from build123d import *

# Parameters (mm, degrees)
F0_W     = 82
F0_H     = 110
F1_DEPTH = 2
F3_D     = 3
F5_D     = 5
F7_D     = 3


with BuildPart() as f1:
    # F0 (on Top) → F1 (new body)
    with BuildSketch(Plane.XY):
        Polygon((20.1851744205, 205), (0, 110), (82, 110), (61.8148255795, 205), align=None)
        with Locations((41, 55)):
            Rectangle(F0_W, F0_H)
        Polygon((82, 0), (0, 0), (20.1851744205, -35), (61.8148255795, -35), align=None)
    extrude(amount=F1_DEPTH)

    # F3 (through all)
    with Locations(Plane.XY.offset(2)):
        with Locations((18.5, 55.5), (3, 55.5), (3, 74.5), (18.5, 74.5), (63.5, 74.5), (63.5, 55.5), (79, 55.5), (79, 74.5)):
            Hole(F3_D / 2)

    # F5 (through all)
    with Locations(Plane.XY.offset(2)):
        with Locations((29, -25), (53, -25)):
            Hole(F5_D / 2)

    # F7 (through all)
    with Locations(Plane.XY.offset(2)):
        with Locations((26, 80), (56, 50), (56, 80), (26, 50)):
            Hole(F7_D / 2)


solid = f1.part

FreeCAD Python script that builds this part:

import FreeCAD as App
import Part
import Sketcher
Q = App.Units.Quantity


def add_polygon(sketch, points):
    """Adds a closed chain of lines whose ends are joined by coincident constraints."""
    first, n = sketch.GeometryCount, len(points)
    for a, b in zip(points, points[1:] + points[:1]):
        sketch.addGeometry(Part.LineSegment(App.Vector(*a, 0), App.Vector(*b, 0)), False)
    for i in range(n):
        sketch.addConstraint(Sketcher.Constraint("Coincident", first + i, 2, first + (i + 1) % n, 1))

doc = App.newDocument("Part")
body = doc.addObject("PartDesign::Body", "Body")

# Sketch on XY plane
sketch1 = body.newObject("Sketcher::SketchObject", "Sketch")
sketch1.AttachmentSupport = (doc.getObject("XY_Plane"), [""])
sketch1.MapMode = "FlatFace"
add_polygon(sketch1, [(20, 205), (0, 110), (0, 0), (20, -35), (62, -35), (82, 0), (82, 110), (62, 205)])  # lines 0-7
sketch1.addConstraint([
    Sketcher.Constraint("Vertical", 1),
    Sketcher.Constraint("Horizontal", 3),
    Sketcher.Constraint("Vertical", 5),
    Sketcher.Constraint("Horizontal", 7),
    Sketcher.Constraint("Coincident", 1, 2, -1, 1),
    Sketcher.Constraint("PointOnObject", 4, 2, -1),
    Sketcher.Constraint("Horizontal", 0, 2, 5, 2),
    Sketcher.Constraint("Vertical", 3, 2, 6, 2),
    Sketcher.Constraint("Vertical", 2, 2, 7, 2),
    Sketcher.Constraint("Equal", 2, 4),
    Sketcher.Constraint("DistanceY", 1, 2, 1, 1, Q("110 mm")),
    Sketcher.Constraint("DistanceY", 2, 2, -1, 1, Q("35 mm")),
    Sketcher.Constraint("DistanceX", -1, 1, 4, 2, Q("82 mm")),
    Sketcher.Constraint("DistanceY", -1, 1, 6, 2, Q("205 mm")),
    Sketcher.Constraint("DistanceX", 3, 1, 3, 2, Q("41.629651 mm")),
])
pad1 = body.newObject("PartDesign::Pad", "Pad")
pad1.Profile = sketch1
pad1.Length = 2

# Sketch on XY plane
sketch2 = body.newObject("Sketcher::SketchObject", "Sketch001")
sketch2.AttachmentSupport = (doc.getObject("XY_Plane"), [""])
sketch2.MapMode = "FlatFace"
sketch2.AttachmentOffset = App.Placement(App.Vector(0, 0, 2), App.Rotation())
sketch2.addGeometry([
    Part.Circle(App.Vector(18.5, 55.5, 0), App.Vector(0, 0, 1), 1.5),  # 0
    Part.Circle(App.Vector(3, 55.5, 0), App.Vector(0, 0, 1), 1.5),  # 1
    Part.Circle(App.Vector(3, 74.5, 0), App.Vector(0, 0, 1), 1.5),  # 2
    Part.Circle(App.Vector(18.5, 74.5, 0), App.Vector(0, 0, 1), 1.5),  # 3
    Part.Circle(App.Vector(63.5, 74.5, 0), App.Vector(0, 0, 1), 1.5),  # 4
    Part.Circle(App.Vector(63.5, 55.5, 0), App.Vector(0, 0, 1), 1.5),  # 5
    Part.Circle(App.Vector(79, 55.5, 0), App.Vector(0, 0, 1), 1.5),  # 6
    Part.Circle(App.Vector(79, 74.5, 0), App.Vector(0, 0, 1), 1.5),  # 7
], False)
sketch2.addConstraint([
    Sketcher.Constraint("Equal", 0, 1),
    Sketcher.Constraint("Equal", 1, 2),
    Sketcher.Constraint("Equal", 2, 3),
    Sketcher.Constraint("Equal", 3, 4),
    Sketcher.Constraint("Equal", 4, 5),
    Sketcher.Constraint("Equal", 5, 6),
    Sketcher.Constraint("Equal", 6, 7),
    Sketcher.Constraint("Horizontal", 0, 3, 1, 3),
    Sketcher.Constraint("Horizontal", 2, 3, 3, 3),
    Sketcher.Constraint("Horizontal", 3, 3, 4, 3),
    Sketcher.Constraint("Horizontal", 1, 3, 5, 3),
    Sketcher.Constraint("Horizontal", 5, 3, 6, 3),
    Sketcher.Constraint("Horizontal", 4, 3, 7, 3),
    Sketcher.Constraint("Vertical", 1, 3, 2, 3),
    Sketcher.Constraint("Vertical", 0, 3, 3, 3),
    Sketcher.Constraint("Vertical", 4, 3, 5, 3),
    Sketcher.Constraint("Vertical", 6, 3, 7, 3),
    Sketcher.Constraint("Diameter", 0, Q("3 mm")),
    Sketcher.Constraint("DistanceX", -1, 1, 1, 3, Q("3 mm")),
    Sketcher.Constraint("DistanceX", -1, 1, 6, 3, Q("79 mm")),
    Sketcher.Constraint("DistanceY", 1, 3, 2, 3, Q("19 mm")),
    Sketcher.Constraint("DistanceX", 3, 3, 4, 3, Q("45 mm")),
    Sketcher.Constraint("DistanceX", -1, 1, 0, 3, Q("18.5 mm")),
    Sketcher.Constraint("DistanceY", -1, 1, 0, 3, Q("55.5 mm")),
])
doc.recompute()
hole = body.newObject("PartDesign::Hole", "Hole")
hole.Profile = sketch2
hole.ThreadType = "None"
hole.Diameter = 3
hole.DepthType = "ThroughAll"

# Sketch on XY plane
sketch3 = body.newObject("Sketcher::SketchObject", "Sketch002")
sketch3.AttachmentSupport = (doc.getObject("XY_Plane"), [""])
sketch3.MapMode = "FlatFace"
sketch3.AttachmentOffset = App.Placement(App.Vector(0, 0, 2), App.Rotation())
sketch3.addGeometry([
    Part.Circle(App.Vector(29, -25, 0), App.Vector(0, 0, 1), 2.5),
    Part.Circle(App.Vector(53, -25, 0), App.Vector(0, 0, 1), 2.5),
], False)
sketch3.addConstraint([
    Sketcher.Constraint("Equal", 0, 1),
    Sketcher.Constraint("Horizontal", 0, 3, 1, 3),
    Sketcher.Constraint("Diameter", 0, Q("5 mm")),
    Sketcher.Constraint("DistanceX", -1, 1, 0, 3, Q("29 mm")),
    Sketcher.Constraint("DistanceY", 0, 3, -1, 1, Q("25 mm")),
    Sketcher.Constraint("DistanceX", -1, 1, 1, 3, Q("53 mm")),
])
doc.recompute()
hole2 = body.newObject("PartDesign::Hole", "Hole001")
hole2.Profile = sketch3
hole2.ThreadType = "None"
hole2.Diameter = 5
hole2.DepthType = "ThroughAll"

# Sketch on XY plane
sketch4 = body.newObject("Sketcher::SketchObject", "Sketch003")
sketch4.AttachmentSupport = (doc.getObject("XY_Plane"), [""])
sketch4.MapMode = "FlatFace"
sketch4.AttachmentOffset = App.Placement(App.Vector(0, 0, 2), App.Rotation())
sketch4.addGeometry([
    Part.Circle(App.Vector(26, 80, 0), App.Vector(0, 0, 1), 1.5),
    Part.Circle(App.Vector(56, 50, 0), App.Vector(0, 0, 1), 1.5),
    Part.Circle(App.Vector(56, 80, 0), App.Vector(0, 0, 1), 1.5),
    Part.Circle(App.Vector(26, 50, 0), App.Vector(0, 0, 1), 1.5),
], False)
sketch4.addConstraint([
    Sketcher.Constraint("Equal", 0, 1),
    Sketcher.Constraint("Equal", 1, 2),
    Sketcher.Constraint("Equal", 2, 3),
    Sketcher.Constraint("Horizontal", 0, 3, 2, 3),
    Sketcher.Constraint("Horizontal", 1, 3, 3, 3),
    Sketcher.Constraint("Vertical", 1, 3, 2, 3),
    Sketcher.Constraint("Vertical", 0, 3, 3, 3),
    Sketcher.Constraint("Diameter", 0, Q("3 mm")),
    Sketcher.Constraint("DistanceX", -1, 1, 0, 3, Q("26 mm")),
    Sketcher.Constraint("DistanceY", -1, 1, 0, 3, Q("80 mm")),
    Sketcher.Constraint("DistanceX", -1, 1, 1, 3, Q("56 mm")),
    Sketcher.Constraint("DistanceY", -1, 1, 1, 3, Q("50 mm")),
])
doc.recompute()
hole3 = body.newObject("PartDesign::Hole", "Hole002")
hole3.Profile = sketch4
hole3.ThreadType = "None"
hole3.Diameter = 3
hole3.DepthType = "ThroughAll"

doc.recompute()
